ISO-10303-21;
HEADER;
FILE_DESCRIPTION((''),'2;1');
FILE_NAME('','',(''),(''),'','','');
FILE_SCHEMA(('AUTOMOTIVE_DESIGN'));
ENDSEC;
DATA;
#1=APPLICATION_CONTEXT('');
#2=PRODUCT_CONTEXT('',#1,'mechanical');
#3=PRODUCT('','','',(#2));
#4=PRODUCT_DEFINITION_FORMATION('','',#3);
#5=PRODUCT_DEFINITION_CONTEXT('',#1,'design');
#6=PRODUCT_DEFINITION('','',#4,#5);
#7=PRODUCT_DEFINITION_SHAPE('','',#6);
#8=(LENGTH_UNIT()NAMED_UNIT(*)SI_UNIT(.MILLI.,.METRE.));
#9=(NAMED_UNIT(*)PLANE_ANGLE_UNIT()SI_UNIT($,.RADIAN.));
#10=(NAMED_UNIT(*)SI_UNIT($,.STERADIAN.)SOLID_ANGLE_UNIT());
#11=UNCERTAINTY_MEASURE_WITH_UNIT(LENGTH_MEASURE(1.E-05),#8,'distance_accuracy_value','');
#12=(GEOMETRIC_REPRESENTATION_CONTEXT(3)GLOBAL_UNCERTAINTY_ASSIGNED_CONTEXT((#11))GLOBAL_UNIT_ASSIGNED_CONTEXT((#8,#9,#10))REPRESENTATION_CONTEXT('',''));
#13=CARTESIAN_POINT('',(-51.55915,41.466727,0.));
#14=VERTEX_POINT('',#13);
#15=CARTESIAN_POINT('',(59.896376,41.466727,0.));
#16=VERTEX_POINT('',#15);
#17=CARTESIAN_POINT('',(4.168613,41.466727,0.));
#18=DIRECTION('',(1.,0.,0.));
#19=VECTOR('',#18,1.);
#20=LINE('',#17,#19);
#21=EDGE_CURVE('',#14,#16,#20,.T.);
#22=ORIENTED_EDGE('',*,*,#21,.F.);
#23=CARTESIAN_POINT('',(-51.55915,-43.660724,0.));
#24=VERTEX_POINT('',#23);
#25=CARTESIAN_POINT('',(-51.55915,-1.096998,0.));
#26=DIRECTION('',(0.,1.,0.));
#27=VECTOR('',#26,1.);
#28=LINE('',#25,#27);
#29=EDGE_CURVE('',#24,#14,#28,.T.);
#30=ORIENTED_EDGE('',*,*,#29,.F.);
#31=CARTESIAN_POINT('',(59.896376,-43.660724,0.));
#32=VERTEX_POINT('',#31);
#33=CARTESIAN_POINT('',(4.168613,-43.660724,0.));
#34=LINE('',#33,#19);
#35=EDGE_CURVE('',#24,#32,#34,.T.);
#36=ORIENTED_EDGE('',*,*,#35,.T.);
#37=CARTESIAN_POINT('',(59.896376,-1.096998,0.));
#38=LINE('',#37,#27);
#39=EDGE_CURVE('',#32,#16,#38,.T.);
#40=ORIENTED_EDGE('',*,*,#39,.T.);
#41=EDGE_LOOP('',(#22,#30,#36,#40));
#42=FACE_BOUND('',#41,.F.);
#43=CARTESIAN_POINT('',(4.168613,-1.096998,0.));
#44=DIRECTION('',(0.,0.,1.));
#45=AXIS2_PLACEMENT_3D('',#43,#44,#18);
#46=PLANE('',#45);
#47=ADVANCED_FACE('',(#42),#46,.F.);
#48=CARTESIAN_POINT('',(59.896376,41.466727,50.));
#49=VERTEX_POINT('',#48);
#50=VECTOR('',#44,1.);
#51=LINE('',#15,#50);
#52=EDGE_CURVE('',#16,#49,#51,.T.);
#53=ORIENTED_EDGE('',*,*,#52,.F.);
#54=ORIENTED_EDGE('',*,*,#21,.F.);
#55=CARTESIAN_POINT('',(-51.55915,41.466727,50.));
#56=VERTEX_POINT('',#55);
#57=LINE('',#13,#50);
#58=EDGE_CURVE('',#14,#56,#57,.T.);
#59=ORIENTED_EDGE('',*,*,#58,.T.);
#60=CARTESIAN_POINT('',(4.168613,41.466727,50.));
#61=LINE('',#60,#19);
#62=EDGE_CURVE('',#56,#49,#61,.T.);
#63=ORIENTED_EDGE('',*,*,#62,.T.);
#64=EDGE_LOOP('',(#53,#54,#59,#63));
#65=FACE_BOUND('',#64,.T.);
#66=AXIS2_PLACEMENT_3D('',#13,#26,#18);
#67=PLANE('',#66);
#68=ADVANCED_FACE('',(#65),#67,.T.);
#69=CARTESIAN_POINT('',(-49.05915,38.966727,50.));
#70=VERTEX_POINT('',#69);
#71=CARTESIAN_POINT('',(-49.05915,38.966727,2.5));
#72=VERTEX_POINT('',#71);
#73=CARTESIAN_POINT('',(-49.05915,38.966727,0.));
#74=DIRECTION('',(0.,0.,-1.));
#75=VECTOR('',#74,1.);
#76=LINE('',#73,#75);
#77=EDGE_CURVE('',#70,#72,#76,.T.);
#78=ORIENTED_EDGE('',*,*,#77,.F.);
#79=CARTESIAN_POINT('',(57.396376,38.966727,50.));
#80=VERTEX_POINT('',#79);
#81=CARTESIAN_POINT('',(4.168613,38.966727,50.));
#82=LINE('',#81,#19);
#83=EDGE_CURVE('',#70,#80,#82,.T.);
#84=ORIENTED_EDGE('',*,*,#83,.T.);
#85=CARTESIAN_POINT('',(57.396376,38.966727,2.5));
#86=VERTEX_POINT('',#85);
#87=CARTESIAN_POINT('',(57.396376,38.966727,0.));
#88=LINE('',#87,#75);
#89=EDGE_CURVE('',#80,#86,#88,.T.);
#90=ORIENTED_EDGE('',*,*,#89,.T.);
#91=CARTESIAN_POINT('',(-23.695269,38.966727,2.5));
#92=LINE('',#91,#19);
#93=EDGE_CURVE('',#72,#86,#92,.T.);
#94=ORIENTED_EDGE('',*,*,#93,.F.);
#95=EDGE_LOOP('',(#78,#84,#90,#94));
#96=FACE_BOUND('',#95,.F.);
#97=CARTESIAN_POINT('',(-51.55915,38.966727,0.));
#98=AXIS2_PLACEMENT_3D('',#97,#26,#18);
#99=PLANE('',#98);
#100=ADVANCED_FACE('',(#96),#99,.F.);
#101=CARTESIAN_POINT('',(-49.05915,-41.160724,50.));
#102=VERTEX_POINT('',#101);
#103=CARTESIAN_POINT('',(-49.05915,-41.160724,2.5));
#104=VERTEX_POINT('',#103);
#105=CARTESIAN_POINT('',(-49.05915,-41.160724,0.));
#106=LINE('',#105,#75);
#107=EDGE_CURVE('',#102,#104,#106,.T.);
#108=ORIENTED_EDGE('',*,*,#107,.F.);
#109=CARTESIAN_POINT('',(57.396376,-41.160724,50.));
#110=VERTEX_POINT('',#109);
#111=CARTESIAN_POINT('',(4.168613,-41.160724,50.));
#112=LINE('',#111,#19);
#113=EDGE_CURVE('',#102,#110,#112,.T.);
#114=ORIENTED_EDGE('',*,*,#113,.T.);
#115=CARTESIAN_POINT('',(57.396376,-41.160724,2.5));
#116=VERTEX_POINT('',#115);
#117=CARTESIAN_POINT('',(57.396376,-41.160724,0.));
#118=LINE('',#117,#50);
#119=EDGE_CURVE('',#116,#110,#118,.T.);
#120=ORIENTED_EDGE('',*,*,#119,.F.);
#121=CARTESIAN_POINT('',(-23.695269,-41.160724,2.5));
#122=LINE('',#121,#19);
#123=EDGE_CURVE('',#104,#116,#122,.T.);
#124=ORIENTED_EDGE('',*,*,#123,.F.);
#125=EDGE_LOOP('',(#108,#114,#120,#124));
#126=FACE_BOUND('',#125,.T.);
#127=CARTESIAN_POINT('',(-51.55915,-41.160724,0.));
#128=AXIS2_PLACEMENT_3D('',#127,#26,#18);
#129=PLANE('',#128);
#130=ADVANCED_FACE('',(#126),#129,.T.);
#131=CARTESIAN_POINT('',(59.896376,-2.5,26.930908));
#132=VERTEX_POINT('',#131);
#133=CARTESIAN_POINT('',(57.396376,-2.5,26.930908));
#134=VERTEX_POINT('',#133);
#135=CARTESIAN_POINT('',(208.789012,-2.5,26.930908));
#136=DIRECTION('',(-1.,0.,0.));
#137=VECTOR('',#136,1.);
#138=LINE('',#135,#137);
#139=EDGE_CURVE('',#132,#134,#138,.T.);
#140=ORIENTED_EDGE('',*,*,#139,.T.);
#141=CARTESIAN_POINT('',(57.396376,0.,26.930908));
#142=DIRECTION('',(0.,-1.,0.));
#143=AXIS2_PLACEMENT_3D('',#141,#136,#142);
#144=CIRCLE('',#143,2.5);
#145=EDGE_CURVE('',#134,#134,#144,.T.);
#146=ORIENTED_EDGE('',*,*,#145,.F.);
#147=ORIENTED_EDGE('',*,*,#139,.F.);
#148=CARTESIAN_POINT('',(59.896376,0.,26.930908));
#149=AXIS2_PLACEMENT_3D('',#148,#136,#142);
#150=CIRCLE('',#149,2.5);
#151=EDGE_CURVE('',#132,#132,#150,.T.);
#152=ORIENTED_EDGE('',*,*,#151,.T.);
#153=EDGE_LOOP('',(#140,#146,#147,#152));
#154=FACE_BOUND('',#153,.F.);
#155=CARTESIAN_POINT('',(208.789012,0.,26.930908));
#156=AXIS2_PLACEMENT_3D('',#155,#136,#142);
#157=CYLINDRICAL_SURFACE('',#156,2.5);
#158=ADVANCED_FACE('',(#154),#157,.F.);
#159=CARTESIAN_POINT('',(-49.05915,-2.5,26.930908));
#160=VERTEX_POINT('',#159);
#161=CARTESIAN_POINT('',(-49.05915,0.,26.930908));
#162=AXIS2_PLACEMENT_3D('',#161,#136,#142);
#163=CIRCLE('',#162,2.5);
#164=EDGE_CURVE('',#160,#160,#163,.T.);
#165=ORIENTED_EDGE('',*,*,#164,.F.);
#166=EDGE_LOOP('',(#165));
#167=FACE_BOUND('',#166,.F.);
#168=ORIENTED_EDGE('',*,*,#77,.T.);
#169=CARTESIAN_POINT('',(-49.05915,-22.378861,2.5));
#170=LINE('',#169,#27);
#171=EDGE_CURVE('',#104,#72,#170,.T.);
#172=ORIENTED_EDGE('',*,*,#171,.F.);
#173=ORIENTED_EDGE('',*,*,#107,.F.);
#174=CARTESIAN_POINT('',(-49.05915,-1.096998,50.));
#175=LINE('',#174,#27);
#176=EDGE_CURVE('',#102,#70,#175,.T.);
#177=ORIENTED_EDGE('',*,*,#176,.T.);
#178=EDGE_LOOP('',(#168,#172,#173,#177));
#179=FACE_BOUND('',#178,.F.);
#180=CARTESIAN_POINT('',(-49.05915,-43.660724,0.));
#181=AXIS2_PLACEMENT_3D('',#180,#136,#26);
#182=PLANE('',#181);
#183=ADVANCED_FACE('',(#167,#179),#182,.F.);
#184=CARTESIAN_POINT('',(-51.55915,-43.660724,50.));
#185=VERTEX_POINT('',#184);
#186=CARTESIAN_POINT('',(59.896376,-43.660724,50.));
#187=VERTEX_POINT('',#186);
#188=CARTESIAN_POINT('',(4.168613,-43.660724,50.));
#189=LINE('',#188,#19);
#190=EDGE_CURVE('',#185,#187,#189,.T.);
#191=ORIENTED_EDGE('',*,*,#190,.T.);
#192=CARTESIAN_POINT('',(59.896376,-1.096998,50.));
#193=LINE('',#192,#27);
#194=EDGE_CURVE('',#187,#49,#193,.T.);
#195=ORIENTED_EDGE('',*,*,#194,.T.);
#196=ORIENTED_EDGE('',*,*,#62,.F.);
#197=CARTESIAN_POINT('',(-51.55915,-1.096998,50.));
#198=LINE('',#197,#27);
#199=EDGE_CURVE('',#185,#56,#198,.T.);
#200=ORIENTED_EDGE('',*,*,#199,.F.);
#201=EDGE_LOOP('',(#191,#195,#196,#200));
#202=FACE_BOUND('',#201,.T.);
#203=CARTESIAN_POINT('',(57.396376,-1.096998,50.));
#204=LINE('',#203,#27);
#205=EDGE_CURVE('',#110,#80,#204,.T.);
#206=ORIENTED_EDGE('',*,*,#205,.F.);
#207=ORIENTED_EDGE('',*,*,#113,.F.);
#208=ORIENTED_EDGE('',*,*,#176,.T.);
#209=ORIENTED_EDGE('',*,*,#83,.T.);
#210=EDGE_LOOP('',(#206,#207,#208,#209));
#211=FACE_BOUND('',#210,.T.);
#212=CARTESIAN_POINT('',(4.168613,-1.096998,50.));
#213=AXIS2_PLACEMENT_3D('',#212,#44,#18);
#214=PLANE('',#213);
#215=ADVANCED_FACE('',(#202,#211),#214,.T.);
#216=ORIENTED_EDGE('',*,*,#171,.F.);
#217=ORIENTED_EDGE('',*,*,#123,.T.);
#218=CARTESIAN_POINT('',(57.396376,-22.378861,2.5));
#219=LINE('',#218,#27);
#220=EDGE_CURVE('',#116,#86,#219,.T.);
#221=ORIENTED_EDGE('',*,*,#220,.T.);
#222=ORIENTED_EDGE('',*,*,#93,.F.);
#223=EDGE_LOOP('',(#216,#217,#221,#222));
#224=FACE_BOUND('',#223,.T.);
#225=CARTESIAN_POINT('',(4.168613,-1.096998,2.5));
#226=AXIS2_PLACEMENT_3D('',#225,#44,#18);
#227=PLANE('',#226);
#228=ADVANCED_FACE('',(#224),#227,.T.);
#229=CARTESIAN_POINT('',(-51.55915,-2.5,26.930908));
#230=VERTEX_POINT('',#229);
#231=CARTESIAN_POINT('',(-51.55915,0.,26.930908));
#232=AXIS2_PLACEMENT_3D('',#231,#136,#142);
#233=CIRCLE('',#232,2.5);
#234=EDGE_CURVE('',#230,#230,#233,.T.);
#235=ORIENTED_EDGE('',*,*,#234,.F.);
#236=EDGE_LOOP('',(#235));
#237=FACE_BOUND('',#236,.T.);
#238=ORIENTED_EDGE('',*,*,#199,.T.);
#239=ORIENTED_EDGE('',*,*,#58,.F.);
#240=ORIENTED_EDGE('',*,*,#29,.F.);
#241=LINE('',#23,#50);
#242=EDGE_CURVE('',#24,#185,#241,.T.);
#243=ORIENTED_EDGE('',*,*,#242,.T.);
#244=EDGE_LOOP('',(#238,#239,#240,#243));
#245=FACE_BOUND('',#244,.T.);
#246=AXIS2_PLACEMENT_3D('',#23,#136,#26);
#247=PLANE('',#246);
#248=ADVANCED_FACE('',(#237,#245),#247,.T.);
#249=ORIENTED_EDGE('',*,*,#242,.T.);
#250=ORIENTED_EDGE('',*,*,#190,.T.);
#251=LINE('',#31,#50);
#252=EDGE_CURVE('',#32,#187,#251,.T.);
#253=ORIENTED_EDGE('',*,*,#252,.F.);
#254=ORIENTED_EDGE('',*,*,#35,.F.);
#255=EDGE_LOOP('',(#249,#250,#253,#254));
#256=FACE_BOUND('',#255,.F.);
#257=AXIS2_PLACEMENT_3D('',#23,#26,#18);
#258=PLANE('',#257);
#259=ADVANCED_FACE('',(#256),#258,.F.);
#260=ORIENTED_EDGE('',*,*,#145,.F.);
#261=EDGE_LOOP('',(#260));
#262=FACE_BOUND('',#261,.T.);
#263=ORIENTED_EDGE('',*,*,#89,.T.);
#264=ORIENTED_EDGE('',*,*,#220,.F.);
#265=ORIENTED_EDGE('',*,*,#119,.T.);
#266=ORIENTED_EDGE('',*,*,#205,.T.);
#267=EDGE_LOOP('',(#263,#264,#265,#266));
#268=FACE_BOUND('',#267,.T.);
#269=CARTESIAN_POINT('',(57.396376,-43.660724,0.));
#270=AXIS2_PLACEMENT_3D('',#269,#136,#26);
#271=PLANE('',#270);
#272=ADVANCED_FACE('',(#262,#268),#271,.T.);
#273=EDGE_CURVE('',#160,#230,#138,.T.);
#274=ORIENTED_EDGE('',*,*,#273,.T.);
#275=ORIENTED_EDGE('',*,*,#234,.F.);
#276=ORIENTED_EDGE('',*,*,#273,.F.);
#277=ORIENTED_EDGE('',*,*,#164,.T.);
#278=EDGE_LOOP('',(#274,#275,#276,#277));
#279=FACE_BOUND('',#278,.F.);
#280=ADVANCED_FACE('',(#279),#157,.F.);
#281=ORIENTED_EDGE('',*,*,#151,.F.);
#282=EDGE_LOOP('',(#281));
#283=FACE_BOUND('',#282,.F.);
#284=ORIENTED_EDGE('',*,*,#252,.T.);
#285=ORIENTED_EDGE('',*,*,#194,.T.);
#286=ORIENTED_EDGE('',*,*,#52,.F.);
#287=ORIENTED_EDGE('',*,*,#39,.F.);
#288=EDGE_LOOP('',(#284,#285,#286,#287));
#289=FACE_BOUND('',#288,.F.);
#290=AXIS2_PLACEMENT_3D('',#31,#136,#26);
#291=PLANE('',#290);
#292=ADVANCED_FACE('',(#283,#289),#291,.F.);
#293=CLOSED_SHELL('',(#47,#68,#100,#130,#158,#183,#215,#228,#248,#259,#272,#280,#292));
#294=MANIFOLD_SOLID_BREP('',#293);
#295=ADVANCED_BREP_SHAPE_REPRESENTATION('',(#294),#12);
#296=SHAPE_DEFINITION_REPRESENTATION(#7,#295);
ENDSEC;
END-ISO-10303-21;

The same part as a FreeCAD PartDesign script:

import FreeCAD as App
import Part
import Sketcher

V = App.Vector
Q = App.Units.Quantity


def faces_at(feature, points):
    """Names of the faces that lie closest to the given points."""
    faces = feature.Shape.Faces
    near = lambda p: min(range(len(faces)), key=lambda i: faces[i].distToShape(Part.Vertex(*p))[0])
    return sorted({f"Face{near(p) + 1}" for p in points})

doc = App.newDocument("Part")
body = doc.addObject("PartDesign::Body", "Body")

sketch1 = doc.addObject("Sketcher::SketchObject", "Sketch")
body.addObject(sketch1)
sketch1.AttachmentSupport = (doc.XY_Plane, [""])
sketch1.MapMode = "FlatFace"
sketch1.addGeometry(Part.LineSegment(V(-52, 41, 0), V(-52, -44, 0)), False)
sketch1.addGeometry(Part.LineSegment(V(-52, -44, 0), V(60, -44, 0)), False)
sketch1.addGeometry(Part.LineSegment(V(60, -44, 0), V(60, 41, 0)), False)
sketch1.addGeometry(Part.LineSegment(V(60, 41, 0), V(-52, 41, 0)), False)
sketch1.addConstraint(Sketcher.Constraint("Coincident", 0, 2, 1, 1))
sketch1.addConstraint(Sketcher.Constraint("Coincident", 1, 2, 2, 1))
sketch1.addConstraint(Sketcher.Constraint("Coincident", 2, 2, 3, 1))
sketch1.addConstraint(Sketcher.Constraint("Coincident", 3, 2, 0, 1))
sketch1.addConstraint(Sketcher.Constraint("Vertical", 0))
sketch1.addConstraint(Sketcher.Constraint("Horizontal", 1))
sketch1.addConstraint(Sketcher.Constraint("Vertical", 2))
sketch1.addConstraint(Sketcher.Constraint("Horizontal", 3))
sketch1.addConstraint(Sketcher.Constraint("DistanceY", 0, 2, 0, 1, Q("85.127451 mm")))
sketch1.addConstraint(Sketcher.Constraint("DistanceX", 1, 1, 1, 2, Q("111.455526 mm")))
sketch1.addConstraint(Sketcher.Constraint("DistanceX", 0, 2, -1, 1, Q("51.55915 mm")))
sketch1.addConstraint(Sketcher.Constraint("DistanceY", 0, 2, -1, 1, Q("43.660724 mm")))
pad1 = doc.addObject("PartDesign::Pad", "Pad")
body.addObject(pad1)
pad1.Profile = sketch1
pad1.Length = 50
doc.recompute()

thickness = doc.addObject("PartDesign::Thickness", "Thickness")
body.addObject(thickness)
thickness.Base = (pad1, faces_at(pad1, [(4.169, -1.097, 50)]))
thickness.Value = 2.5
thickness.Reversed = True
thickness.Join = "Arc"

sketch2 = doc.addObject("Sketcher::SketchObject", "Sketch001")
body.addObject(sketch2)
sketch2.AttachmentSupport = (doc.YZ_Plane, [""])
sketch2.MapMode = "FlatFace"
sketch2.AttachmentOffset = App.Placement(V(0, 0, 59.896376), App.Rotation())
sketch2.addGeometry(Part.Circle(V(0, 26.9, 0), V(0, 0, 1), 2.5), False)
sketch2.addConstraint(Sketcher.Constraint("PointOnObject", 0, 3, -2))
sketch2.addConstraint(Sketcher.Constraint("Diameter", 0, Q("5 mm")))
sketch2.addConstraint(Sketcher.Constraint("DistanceY", -1, 1, 0, 3, Q("26.930908 mm")))
doc.recompute()
hole = doc.addObject("PartDesign::Hole", "Hole")
body.addObject(hole)
hole.Profile = sketch2
hole.ThreadType = "None"
hole.Diameter = 5
hole.DepthType = "ThroughAll"

doc.recompute()
